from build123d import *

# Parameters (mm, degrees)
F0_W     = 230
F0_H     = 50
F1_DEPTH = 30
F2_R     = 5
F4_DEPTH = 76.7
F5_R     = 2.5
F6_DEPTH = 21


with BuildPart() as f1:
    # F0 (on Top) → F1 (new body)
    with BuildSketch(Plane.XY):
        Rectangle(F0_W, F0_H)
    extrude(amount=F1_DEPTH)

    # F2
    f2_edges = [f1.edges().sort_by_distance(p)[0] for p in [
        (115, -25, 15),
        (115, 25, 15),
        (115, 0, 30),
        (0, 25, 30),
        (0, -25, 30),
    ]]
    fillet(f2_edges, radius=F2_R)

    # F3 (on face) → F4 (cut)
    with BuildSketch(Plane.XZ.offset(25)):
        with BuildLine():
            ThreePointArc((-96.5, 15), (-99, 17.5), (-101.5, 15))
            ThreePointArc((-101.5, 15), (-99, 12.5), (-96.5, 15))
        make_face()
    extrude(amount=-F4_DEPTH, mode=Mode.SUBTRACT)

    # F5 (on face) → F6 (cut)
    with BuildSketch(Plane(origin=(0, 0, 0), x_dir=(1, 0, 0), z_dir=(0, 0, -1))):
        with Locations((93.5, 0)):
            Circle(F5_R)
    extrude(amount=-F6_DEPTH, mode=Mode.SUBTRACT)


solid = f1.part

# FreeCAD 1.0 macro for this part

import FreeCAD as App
import Part
import Sketcher
Q = App.Units.Quantity


def edges_at(feature, points):
    """Names of the edges that pass closest to the given points."""
    edges = feature.Shape.Edges
    near = lambda p: min(range(len(edges)), key=lambda i: edges[i].distToShape(Part.Vertex(*p))[0])
    return sorted({f"Edge{near(p) + 1}" for p in points})

doc = App.newDocument("Part")
body = doc.addObject("PartDesign::Body", "Body")

# Sketch on XY plane
sketch1 = body.newObject("Sketcher::SketchObject", "Sketch")
sketch1.AttachmentSupport = (doc.getObject("XY_Plane"), [""])
sketch1.MapMode = "FlatFace"
sketch1.addGeometry(Part.LineSegment(App.Vector(-115, 25, 0), App.Vector(-115, -25, 0)), False)
sketch1.addGeometry(Part.LineSegment(App.Vector(-115, -25, 0), App.Vector(115, -25, 0)), False)
sketch1.addGeometry(Part.LineSegment(App.Vector(115, -25, 0), App.Vector(115, 25, 0)), False)
sketch1.addGeometry(Part.LineSegment(App.Vector(115, 25, 0), App.Vector(-115, 25, 0)), False)
sketch1.addConstraint(Sketcher.Constraint("Coincident", 0, 2, 1, 1))
sketch1.addConstraint(Sketcher.Constraint("Coincident", 1, 2, 2, 1))
sketch1.addConstraint(Sketcher.Constraint("Coincident", 2, 2, 3, 1))
sketch1.addConstraint(Sketcher.Constraint("Coincident", 3, 2, 0, 1))
sketch1.addConstraint(Sketcher.Constraint("Vertical", 0))
sketch1.addConstraint(Sketcher.Constraint("Horizontal", 1))
sketch1.addConstraint(Sketcher.Constraint("Vertical", 2))
sketch1.addConstraint(Sketcher.Constraint("Horizontal", 3))
sketch1.addConstraint(Sketcher.Constraint("Symmetric", 0, 2, 2, 2, -1, 1))
sketch1.addConstraint(Sketcher.Constraint("DistanceX", 1, 1, 1, 2, Q("230 mm")))
sketch1.addConstraint(Sketcher.Constraint("DistanceY", 0, 2, 0, 1, Q("50 mm")))
pad1 = body.newObject("PartDesign::Pad", "Pad")
pad1.Profile = sketch1
pad1.Length = 30
doc.recompute()

fillet = body.newObject("PartDesign::Fillet", "Fillet")
fillet.Base = (pad1, edges_at(pad1, [
    (115, -25, 15),
    (115, 25, 15),
    (115, 0, 30),
    (0, 25, 30),
    (0, -25, 30),
]))
fillet.Radius = 5

# Sketch on XZ plane
sketch2 = body.newObject("Sketcher::SketchObject", "Sketch001")
sketch2.AttachmentSupport = (doc.getObject("XZ_Plane"), [""])
sketch2.MapMode = "FlatFace"
sketch2.AttachmentOffset = App.Placement(App.Vector(0, 0, 25), App.Rotation())
sketch2.addGeometry(Part.Circle(App.Vector(-99, 15, 0), App.Vector(0, 0, 1), 2.5), False)
sketch2.addConstraint(Sketcher.Constraint("Diameter", 0, Q("5 mm")))
sketch2.addConstraint(Sketcher.Constraint("DistanceX", 0, 3, -1, 1, Q("99 mm")))
sketch2.addConstraint(Sketcher.Constraint("DistanceY", -1, 1, 0, 3, Q("15 mm")))
pocket1 = body.newObject("PartDesign::Pocket", "Pocket")
pocket1.Profile = sketch2
pocket1.Length = 76.7

# Sketch on XY plane
sketch3 = body.newObject("Sketcher::SketchObject", "Sketch002")
sketch3.AttachmentSupport = (doc.getObject("XY_Plane"), [""])
sketch3.MapMode = "FlatFace"
sketch3.addGeometry(Part.Circle(App.Vector(93.5, 0, 0), App.Vector(0, 0, 1), 2.5), False)
sketch3.addConstraint(Sketcher.Constraint("PointOnObject", 0, 3, -1))
sketch3.addConstraint(Sketcher.Constraint("Diameter", 0, Q("5 mm")))
sketch3.addConstraint(Sketcher.Constraint("DistanceX", -1, 1, 0, 3, Q("93.5 mm")))
pocket2 = body.newObject("PartDesign::Pocket", "Pocket001")
pocket2.Profile = sketch3
pocket2.Length = 21
pocket2.Reversed = True

doc.recompute()
